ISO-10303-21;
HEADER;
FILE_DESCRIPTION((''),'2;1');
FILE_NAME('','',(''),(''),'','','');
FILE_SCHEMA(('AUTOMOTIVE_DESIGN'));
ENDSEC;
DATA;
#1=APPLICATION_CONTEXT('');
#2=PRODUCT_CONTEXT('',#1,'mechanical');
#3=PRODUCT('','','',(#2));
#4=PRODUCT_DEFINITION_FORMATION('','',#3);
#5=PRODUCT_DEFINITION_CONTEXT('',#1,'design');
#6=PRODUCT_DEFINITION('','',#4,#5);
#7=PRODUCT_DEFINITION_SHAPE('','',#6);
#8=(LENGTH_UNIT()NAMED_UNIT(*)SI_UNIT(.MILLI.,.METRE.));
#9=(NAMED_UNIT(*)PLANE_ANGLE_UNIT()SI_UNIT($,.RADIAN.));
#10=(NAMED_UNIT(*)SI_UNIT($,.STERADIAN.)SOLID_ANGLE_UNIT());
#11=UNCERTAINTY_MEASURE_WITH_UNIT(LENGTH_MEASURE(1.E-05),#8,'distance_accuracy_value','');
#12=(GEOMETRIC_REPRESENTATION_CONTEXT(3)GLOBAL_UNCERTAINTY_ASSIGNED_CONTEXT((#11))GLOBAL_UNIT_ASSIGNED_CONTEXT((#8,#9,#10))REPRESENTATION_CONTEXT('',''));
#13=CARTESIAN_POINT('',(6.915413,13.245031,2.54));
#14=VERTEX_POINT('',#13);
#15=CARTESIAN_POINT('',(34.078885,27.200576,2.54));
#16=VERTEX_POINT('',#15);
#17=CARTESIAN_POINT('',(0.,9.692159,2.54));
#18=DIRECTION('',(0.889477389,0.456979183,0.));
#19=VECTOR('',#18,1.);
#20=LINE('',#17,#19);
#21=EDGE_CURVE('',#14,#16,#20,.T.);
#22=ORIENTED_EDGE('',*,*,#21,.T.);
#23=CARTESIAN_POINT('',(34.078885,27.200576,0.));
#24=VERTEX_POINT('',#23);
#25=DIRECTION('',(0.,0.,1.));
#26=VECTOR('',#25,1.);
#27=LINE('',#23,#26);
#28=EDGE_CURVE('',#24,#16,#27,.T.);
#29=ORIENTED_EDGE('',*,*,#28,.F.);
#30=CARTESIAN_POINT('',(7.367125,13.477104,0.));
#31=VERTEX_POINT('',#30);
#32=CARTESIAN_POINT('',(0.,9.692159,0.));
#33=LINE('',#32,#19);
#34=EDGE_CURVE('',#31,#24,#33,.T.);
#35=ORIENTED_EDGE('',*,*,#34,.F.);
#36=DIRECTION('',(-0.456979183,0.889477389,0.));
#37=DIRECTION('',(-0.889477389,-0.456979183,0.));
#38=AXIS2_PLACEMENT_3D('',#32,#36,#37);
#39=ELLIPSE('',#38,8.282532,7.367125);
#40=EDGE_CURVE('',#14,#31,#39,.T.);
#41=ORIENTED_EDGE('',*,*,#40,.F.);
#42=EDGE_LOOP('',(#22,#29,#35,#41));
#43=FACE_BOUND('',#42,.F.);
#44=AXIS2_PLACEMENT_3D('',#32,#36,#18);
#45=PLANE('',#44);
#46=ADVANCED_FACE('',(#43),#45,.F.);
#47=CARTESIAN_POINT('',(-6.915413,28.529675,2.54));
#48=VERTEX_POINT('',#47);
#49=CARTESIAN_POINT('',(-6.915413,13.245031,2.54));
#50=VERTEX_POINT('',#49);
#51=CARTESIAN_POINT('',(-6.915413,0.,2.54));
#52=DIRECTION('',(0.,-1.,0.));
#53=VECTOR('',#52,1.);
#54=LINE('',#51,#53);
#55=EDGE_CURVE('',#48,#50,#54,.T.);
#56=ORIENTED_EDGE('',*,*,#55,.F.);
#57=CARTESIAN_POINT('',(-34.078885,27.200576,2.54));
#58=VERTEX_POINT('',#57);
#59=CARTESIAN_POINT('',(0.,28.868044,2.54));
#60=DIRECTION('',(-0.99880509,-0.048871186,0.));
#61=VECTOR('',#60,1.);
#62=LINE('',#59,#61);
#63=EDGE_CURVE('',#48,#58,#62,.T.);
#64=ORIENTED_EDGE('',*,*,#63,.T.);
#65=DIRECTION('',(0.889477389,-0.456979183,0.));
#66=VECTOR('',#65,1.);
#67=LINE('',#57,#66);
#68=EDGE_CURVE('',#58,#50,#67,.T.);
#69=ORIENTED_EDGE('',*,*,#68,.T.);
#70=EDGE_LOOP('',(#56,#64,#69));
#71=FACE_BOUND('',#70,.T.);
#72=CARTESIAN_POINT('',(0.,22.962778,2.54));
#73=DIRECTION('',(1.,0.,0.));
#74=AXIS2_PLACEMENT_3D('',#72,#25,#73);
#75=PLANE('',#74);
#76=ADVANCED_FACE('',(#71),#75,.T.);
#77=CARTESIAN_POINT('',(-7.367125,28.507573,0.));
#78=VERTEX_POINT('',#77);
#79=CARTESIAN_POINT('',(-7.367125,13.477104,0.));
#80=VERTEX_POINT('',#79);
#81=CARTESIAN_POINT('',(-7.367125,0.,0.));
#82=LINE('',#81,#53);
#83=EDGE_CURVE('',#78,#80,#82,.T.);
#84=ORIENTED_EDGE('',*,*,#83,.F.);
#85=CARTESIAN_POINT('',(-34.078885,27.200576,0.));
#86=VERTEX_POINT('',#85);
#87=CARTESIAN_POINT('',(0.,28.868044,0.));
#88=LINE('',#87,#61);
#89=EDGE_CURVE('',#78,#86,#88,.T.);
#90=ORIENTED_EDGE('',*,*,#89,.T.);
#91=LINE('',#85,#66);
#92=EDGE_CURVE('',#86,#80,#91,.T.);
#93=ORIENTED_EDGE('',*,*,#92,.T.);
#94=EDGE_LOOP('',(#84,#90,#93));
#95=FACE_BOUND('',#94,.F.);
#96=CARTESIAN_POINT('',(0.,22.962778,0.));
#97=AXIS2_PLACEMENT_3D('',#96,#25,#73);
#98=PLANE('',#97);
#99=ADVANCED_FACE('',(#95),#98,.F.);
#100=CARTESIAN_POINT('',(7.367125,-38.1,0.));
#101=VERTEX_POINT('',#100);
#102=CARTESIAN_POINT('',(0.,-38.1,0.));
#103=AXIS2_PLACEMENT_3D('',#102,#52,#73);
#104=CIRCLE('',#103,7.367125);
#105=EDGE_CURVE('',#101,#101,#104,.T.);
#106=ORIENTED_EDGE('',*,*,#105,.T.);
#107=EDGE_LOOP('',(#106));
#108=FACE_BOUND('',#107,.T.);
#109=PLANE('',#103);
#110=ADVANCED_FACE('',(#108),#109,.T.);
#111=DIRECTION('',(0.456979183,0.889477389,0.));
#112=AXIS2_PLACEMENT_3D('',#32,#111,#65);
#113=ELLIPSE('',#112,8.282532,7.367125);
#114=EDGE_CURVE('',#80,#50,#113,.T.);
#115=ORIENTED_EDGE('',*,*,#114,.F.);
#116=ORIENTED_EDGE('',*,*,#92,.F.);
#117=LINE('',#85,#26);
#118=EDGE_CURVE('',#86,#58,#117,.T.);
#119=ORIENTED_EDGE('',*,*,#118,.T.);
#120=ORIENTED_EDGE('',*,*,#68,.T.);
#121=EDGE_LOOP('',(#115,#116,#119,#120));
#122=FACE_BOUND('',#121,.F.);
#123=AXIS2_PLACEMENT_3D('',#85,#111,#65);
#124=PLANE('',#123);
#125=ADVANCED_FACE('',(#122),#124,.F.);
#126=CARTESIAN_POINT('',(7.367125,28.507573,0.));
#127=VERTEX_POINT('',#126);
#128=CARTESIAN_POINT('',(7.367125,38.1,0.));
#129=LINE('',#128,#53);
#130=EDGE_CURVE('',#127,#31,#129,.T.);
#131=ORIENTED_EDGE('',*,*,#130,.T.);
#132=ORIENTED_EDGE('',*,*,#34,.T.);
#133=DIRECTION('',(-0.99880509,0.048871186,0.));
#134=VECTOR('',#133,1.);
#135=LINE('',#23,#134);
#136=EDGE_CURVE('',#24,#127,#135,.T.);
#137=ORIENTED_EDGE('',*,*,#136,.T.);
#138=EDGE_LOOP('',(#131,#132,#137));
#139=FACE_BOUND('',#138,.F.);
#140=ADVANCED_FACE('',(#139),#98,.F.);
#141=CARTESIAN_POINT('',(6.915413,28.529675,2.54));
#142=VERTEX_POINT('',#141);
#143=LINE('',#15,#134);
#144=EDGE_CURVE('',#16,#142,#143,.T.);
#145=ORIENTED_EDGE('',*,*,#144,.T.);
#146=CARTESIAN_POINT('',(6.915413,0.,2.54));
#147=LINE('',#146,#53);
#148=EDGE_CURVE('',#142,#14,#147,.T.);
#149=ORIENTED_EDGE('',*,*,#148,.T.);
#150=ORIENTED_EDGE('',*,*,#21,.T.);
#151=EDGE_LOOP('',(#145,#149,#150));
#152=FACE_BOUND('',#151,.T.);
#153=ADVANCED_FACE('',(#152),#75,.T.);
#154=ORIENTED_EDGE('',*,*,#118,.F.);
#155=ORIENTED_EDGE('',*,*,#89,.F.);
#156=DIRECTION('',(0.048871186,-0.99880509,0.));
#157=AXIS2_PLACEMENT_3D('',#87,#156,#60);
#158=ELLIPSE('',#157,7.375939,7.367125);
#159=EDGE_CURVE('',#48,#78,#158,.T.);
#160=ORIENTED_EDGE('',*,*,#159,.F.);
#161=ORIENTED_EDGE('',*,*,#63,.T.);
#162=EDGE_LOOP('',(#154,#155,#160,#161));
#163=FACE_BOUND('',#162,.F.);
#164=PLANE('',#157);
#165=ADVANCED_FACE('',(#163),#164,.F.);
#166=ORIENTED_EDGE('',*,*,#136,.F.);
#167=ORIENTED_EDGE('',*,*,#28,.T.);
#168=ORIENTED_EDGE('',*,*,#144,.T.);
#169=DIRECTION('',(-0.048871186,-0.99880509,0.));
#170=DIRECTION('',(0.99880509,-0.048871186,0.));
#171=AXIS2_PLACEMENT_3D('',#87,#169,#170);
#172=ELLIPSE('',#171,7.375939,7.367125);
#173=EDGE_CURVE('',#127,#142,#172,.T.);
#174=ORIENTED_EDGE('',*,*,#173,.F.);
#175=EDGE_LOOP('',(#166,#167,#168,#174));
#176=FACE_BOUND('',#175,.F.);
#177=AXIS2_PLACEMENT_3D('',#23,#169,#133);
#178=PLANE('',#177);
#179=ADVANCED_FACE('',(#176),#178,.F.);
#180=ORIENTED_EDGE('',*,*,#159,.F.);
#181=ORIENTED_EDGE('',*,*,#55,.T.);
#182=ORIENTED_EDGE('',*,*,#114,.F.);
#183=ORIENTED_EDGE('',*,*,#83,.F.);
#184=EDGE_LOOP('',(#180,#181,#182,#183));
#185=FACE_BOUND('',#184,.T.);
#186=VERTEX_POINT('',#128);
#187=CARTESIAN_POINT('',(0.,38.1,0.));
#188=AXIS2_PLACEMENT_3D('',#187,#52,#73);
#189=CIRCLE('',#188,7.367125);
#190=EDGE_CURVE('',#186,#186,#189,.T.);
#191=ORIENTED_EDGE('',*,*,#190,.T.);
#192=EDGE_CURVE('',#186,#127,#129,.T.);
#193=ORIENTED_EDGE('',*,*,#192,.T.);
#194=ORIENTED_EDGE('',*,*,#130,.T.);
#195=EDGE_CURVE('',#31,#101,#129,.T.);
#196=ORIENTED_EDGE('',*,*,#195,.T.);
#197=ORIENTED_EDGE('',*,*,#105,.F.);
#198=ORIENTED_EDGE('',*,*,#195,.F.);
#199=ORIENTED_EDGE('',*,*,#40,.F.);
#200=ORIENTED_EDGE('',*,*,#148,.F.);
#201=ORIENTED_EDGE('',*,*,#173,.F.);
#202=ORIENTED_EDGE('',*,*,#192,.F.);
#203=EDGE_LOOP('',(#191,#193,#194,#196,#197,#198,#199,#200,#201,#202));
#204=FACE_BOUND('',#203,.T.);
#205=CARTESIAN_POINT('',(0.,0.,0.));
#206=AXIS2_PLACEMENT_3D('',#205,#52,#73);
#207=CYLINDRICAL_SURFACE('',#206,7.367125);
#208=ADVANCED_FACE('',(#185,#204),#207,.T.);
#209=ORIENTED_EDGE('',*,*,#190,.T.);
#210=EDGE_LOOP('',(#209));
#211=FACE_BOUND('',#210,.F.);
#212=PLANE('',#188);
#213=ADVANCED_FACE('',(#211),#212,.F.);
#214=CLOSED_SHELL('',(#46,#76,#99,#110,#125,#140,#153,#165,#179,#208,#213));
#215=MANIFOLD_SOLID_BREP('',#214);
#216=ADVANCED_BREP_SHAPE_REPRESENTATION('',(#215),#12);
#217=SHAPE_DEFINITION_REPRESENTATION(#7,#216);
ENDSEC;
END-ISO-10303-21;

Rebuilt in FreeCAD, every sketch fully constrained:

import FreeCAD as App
import Part
import Sketcher
Q = App.Units.Quantity

doc = App.newDocument("Part")
body = doc.addObject("PartDesign::Body", "Body")

sketch1 = doc.addObject("Sketcher::SketchObject", "Sketch")
body.addObject(sketch1)
sketch1.AttachmentSupport = (doc.XZ_Plane, [""])
sketch1.MapMode = "FlatFace"
sketch1.addGeometry(Part.Circle(App.Vector(0, 0, 0), App.Vector(0, 0, 1), 7), False)
sketch1.addConstraint(Sketcher.Constraint("Coincident", 0, 3, -1, 1))
sketch1.addConstraint(Sketcher.Constraint("Diameter", 0, 14.73425))
pad1 = doc.addObject("PartDesign::Pad", "Pad")
body.addObject(pad1)
pad1.Profile = sketch1
pad1.Length = Q("3 in")
pad1.Midplane = True

sketch2 = doc.addObject("Sketcher::SketchObject", "Sketch001")
body.addObject(sketch2)
sketch2.AttachmentSupport = (doc.XY_Plane, [""])
sketch2.MapMode = "FlatFace"
sketch2.addGeometry(Part.LineSegment(App.Vector(-34, 27, 0), App.Vector(0, 10, 0)), False)
sketch2.addGeometry(Part.LineSegment(App.Vector(0, 10, 0), App.Vector(34, 27, 0)), False)
sketch2.addGeometry(Part.LineSegment(App.Vector(34, 27, 0), App.Vector(0, 29, 0)), False)
sketch2.addGeometry(Part.LineSegment(App.Vector(0, 29, 0), App.Vector(-34, 27, 0)), False)
sketch2.addConstraint(Sketcher.Constraint("Coincident", 0, 2, 1, 1))
sketch2.addConstraint(Sketcher.Constraint("Coincident", 1, 2, 2, 1))
sketch2.addConstraint(Sketcher.Constraint("Coincident", 2, 2, 3, 1))
sketch2.addConstraint(Sketcher.Constraint("Coincident", 3, 2, 0, 1))
sketch2.addConstraint(Sketcher.Constraint("Symmetric", 1, 2, 3, 2, -2))
sketch2.addConstraint(Sketcher.Constraint("PointOnObject", 0, 2, -2))
sketch2.addConstraint(Sketcher.Constraint("PointOnObject", 2, 2, -2))
sketch2.addConstraint(Sketcher.Constraint("Distance", 0, 38.31338))
sketch2.addConstraint(Sketcher.Constraint("DistanceY", -1, 1, 0, 2, 9.692159))
sketch2.addConstraint(Sketcher.Constraint("DistanceX", 3, 2, 1, 2, 68.15777))
sketch2.addConstraint(Sketcher.Constraint("Distance", 2, 34.119655))
pad2 = doc.addObject("PartDesign::Pad", "Pad001")
body.addObject(pad2)
pad2.Profile = sketch2
pad2.Length = Q("0.1 in")

doc.recompute()
